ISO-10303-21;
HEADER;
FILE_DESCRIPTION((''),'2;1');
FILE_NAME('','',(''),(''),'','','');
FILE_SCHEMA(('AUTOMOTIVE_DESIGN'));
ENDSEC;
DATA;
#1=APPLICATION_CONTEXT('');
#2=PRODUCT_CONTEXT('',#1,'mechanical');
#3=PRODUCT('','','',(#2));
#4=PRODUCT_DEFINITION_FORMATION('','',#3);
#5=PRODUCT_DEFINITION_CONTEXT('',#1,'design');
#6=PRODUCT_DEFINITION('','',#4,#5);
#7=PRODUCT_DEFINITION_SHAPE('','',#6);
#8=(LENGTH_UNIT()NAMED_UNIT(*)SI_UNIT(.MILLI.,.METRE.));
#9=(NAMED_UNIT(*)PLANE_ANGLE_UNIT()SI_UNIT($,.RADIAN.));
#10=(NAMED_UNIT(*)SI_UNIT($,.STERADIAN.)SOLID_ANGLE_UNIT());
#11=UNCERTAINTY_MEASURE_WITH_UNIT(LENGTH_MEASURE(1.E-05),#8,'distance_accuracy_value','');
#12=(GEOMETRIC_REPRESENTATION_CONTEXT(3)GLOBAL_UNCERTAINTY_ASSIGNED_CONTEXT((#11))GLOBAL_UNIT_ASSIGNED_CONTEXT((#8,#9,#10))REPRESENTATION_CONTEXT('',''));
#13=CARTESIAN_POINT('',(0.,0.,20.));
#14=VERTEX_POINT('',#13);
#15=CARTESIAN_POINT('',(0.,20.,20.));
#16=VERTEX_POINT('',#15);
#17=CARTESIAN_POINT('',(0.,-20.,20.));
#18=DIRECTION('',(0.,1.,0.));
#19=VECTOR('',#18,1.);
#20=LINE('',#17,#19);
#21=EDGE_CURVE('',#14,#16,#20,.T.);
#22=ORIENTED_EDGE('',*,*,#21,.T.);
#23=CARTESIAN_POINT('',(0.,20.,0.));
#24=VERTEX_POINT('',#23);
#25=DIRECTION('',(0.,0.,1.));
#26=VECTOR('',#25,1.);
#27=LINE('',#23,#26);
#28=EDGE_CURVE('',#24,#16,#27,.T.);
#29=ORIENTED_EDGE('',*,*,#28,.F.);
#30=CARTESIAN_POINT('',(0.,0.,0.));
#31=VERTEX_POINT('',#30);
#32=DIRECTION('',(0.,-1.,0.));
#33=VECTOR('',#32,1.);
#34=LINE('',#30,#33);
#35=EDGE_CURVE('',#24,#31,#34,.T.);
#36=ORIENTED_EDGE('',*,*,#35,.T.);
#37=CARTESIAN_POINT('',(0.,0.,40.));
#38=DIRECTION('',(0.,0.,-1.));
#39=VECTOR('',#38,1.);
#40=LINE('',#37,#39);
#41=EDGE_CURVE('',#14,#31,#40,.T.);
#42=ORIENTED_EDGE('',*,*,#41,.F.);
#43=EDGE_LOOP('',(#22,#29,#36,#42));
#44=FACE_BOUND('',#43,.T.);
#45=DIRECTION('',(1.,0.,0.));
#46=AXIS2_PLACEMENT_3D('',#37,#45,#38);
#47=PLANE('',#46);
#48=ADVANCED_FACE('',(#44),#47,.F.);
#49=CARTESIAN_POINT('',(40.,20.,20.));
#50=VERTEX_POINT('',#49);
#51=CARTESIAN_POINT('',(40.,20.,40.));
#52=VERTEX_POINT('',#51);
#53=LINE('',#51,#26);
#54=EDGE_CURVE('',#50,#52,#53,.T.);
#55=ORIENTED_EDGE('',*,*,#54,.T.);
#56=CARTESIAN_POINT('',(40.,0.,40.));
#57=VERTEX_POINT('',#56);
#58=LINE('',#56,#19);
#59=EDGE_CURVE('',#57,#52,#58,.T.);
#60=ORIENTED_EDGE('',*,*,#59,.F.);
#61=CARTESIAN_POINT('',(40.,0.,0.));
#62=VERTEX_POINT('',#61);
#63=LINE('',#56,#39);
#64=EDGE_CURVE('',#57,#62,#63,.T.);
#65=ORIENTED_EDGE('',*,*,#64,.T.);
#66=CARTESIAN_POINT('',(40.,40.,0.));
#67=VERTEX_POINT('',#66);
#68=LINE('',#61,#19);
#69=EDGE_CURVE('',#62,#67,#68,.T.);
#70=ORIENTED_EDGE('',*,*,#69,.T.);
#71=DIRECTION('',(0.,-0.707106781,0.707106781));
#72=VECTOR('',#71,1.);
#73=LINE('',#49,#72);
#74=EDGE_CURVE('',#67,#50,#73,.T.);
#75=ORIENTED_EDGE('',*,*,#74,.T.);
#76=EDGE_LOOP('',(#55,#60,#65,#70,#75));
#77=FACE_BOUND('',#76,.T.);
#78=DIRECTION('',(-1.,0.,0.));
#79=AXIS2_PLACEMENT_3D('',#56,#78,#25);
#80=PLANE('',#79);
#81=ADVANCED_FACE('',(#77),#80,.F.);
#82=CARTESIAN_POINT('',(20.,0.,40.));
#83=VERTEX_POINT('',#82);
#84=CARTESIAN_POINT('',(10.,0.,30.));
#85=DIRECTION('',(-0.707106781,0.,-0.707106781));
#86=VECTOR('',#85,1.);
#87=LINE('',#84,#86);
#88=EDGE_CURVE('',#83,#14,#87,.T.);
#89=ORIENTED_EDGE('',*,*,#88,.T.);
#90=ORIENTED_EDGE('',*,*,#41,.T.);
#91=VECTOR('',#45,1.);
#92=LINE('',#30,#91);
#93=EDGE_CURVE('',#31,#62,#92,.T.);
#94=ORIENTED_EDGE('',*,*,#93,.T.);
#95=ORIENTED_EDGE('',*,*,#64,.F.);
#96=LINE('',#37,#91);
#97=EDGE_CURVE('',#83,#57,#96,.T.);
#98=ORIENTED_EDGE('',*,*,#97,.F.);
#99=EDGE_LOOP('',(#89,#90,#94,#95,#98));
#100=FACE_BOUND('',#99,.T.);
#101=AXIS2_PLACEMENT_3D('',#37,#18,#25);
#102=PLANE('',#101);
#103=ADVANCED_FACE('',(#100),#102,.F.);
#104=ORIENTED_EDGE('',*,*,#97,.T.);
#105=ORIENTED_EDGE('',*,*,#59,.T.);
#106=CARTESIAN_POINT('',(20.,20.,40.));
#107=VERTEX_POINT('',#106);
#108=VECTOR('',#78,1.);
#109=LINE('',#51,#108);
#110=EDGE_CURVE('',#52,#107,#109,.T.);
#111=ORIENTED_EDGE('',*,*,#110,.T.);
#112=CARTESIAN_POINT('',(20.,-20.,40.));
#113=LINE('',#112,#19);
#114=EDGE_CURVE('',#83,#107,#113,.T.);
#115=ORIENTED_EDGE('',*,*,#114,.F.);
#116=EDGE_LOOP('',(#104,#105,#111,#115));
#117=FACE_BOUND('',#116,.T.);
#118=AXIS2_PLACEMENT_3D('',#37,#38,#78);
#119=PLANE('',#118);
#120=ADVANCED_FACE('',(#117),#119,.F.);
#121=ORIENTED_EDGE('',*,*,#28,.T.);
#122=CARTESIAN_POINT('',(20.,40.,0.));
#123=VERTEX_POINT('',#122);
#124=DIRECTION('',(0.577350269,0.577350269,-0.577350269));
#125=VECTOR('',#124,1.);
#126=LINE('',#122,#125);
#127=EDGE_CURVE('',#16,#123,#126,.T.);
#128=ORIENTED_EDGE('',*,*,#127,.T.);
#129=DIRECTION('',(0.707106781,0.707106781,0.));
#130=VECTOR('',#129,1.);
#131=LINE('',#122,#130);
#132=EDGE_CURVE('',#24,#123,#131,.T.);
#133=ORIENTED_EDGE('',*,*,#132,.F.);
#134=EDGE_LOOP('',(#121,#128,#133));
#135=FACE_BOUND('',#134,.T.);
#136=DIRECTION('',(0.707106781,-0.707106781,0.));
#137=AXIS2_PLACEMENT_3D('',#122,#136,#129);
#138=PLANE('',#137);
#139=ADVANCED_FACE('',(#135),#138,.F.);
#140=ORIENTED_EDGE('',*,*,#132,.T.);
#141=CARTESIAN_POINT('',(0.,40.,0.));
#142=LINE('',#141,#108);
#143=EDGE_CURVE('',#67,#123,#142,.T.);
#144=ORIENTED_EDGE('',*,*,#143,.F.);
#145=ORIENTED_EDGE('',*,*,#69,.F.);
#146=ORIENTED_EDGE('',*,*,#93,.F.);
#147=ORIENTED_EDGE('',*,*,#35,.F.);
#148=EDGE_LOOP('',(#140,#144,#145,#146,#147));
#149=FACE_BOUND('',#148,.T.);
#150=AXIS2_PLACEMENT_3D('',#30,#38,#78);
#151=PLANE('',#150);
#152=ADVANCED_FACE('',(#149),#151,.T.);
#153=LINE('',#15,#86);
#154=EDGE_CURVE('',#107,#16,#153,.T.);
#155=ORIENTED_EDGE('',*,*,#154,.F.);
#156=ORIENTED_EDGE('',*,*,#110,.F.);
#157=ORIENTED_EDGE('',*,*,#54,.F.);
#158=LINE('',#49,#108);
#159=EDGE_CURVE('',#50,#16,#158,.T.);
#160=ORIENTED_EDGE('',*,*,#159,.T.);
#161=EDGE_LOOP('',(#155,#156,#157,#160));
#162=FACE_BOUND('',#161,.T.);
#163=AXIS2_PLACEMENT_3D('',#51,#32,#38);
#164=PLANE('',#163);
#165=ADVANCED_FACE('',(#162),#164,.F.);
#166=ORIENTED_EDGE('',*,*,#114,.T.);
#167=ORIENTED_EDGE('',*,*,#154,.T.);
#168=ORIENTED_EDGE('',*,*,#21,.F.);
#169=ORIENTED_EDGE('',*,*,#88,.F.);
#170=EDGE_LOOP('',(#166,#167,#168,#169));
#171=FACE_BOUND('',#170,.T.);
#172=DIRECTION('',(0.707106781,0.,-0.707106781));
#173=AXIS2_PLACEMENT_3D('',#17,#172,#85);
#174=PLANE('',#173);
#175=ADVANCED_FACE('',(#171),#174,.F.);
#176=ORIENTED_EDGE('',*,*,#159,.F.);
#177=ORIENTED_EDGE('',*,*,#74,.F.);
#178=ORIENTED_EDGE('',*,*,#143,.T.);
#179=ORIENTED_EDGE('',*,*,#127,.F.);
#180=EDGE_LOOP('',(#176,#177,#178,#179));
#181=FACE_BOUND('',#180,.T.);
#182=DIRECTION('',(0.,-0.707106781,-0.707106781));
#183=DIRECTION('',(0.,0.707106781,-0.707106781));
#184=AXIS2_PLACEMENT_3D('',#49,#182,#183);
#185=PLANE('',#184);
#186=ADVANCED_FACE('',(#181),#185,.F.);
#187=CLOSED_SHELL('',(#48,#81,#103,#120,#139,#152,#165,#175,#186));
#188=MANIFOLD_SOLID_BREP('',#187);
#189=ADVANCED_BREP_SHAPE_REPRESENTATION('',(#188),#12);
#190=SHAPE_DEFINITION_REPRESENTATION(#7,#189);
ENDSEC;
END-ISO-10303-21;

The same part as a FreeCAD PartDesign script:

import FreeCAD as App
import Part
import Sketcher

V = App.Vector
Q = App.Units.Quantity


def add_polygon(sketch, points):
    """Adds a closed chain of lines whose ends are joined by coincident constraints."""
    first, n = sketch.GeometryCount, len(points)
    for a, b in zip(points, points[1:] + points[:1]):
        sketch.addGeometry(Part.LineSegment(App.Vector(*a, 0), App.Vector(*b, 0)), False)
    for i in range(n):
        sketch.addConstraint(Sketcher.Constraint("Coincident", first + i, 2, first + (i + 1) % n, 1))

doc = App.newDocument("Part")
params = doc.addObject("Spreadsheet::Sheet", "Params")
for row, (alias, value) in enumerate([
    ("sketch1_width", "40 mm"),
    ("pad1_length", "40 mm"),
    ("sketch2_width", "20 mm"),
    ("pocket1_length", "40 mm"),
    ("sketch3_width", "20 mm"),
    ("sketch3_height", "40 mm"),
    ("pocket2_length", "40 mm"),
    ("sketch4_width", "20 mm"),
    ("pocket3_length", "40 mm"),
], start=1):
    params.set(f"A{row}", alias)
    params.set(f"B{row}", "=" + value)
    params.setAlias(f"B{row}", alias)

body = doc.addObject("PartDesign::Body", "Body")

sketch1 = body.newObject("Sketcher::SketchObject", "Sketch")
sketch1.AttachmentSupport = (doc.getObject("XY_Plane"), [""])
sketch1.MapMode = "FlatFace"
add_polygon(sketch1, [(0, 40), (0, 0), (40, 0), (40, 40)])
sketch1.addConstraint([
    Sketcher.Constraint("Vertical", 0),
    Sketcher.Constraint("Horizontal", 1),
    Sketcher.Constraint("Vertical", 2),
    Sketcher.Constraint("Horizontal", 3),
    Sketcher.Constraint("Coincident", 0, 2, -1, 1),
    Sketcher.Constraint("Equal", 3, 0),
    Sketcher.Constraint("DistanceX", 1, 1, 1, 2, Q("40 mm")),
])
sketch1.setExpression("Constraints[10]", "Params.sketch1_width")
pad1 = body.newObject("PartDesign::Pad", "Pad")
pad1.Profile = sketch1
pad1.setExpression("Length", "Params.pad1_length")

sketch2 = body.newObject("Sketcher::SketchObject", "Sketch001")
sketch2.AttachmentSupport = (doc.getObject("XY_Plane"), [""])
sketch2.MapMode = "FlatFace"
sketch2.AttachmentOffset = App.Placement(V(0, 0, 40), App.Rotation())
add_polygon(sketch2, [(0, 40), (0, 20), (20, 40)])
sketch2.addConstraint([
    Sketcher.Constraint("Vertical", 0),
    Sketcher.Constraint("Horizontal", 2),
    Sketcher.Constraint("PointOnObject", 0, 2, -2),
    Sketcher.Constraint("Equal", 2, 0),
    Sketcher.Constraint("DistanceX", 2, 2, 2, 1, Q("20 mm")),
    Sketcher.Constraint("DistanceY", -1, 1, 0, 2, Q("20 mm")),
])
sketch2.setExpression("Constraints[7]", "Params.sketch2_width")
pocket1 = body.newObject("PartDesign::Pocket", "Pocket")
pocket1.Profile = sketch2
pocket1.setExpression("Length", "Params.pocket1_length")

sketch3 = body.newObject("Sketcher::SketchObject", "Sketch002")
sketch3.AttachmentSupport = (doc.getObject("YZ_Plane"), [""])
sketch3.MapMode = "FlatFace"
add_polygon(sketch3, [(20, 20), (20, 40), (40, 40), (40, 0)])
sketch3.addConstraint([
    Sketcher.Constraint("Vertical", 0),
    Sketcher.Constraint("Horizontal", 1),
    Sketcher.Constraint("Vertical", 2),
    Sketcher.Constraint("PointOnObject", 2, 2, -1),
    Sketcher.Constraint("Equal", 1, 0),
    Sketcher.Constraint("DistanceX", 1, 1, 1, 2, Q("20 mm")),
    Sketcher.Constraint("DistanceY", 2, 2, 2, 1, Q("40 mm")),
    Sketcher.Constraint("DistanceX", -1, 1, 0, 2, Q("20 mm")),
])
sketch3.setExpression("Constraints[9]", "Params.sketch3_width")
sketch3.setExpression("Constraints[10]", "Params.sketch3_height")
pocket2 = body.newObject("PartDesign::Pocket", "Pocket001")
pocket2.Profile = sketch3
pocket2.setExpression("Length", "Params.pocket2_length")
pocket2.Reversed = True

sketch4 = body.newObject("Sketcher::SketchObject", "Sketch003")
sketch4.AttachmentSupport = (doc.getObject("XZ_Plane"), [""])
sketch4.MapMode = "FlatFace"
sketch4.AttachmentOffset = App.Placement(V(0, 0, -20), App.Rotation())
add_polygon(sketch4, [(20, 40), (0, 20), (0, 40)])
sketch4.addConstraint([
    Sketcher.Constraint("Vertical", 1),
    Sketcher.Constraint("Horizontal", 2),
    Sketcher.Constraint("PointOnObject", 0, 2, -2),
    Sketcher.Constraint("Equal", 2, 1),
    Sketcher.Constraint("DistanceX", 2, 1, 2, 2, Q("20 mm")),
    Sketcher.Constraint("DistanceY", -1, 1, 0, 2, Q("20 mm")),
])
sketch4.setExpression("Constraints[7]", "Params.sketch4_width")
pocket3 = body.newObject("PartDesign::Pocket", "Pocket002")
pocket3.Profile = sketch4
pocket3.setExpression("Length", "Params.pocket3_length")
pocket3.Reversed = True

doc.recompute()
